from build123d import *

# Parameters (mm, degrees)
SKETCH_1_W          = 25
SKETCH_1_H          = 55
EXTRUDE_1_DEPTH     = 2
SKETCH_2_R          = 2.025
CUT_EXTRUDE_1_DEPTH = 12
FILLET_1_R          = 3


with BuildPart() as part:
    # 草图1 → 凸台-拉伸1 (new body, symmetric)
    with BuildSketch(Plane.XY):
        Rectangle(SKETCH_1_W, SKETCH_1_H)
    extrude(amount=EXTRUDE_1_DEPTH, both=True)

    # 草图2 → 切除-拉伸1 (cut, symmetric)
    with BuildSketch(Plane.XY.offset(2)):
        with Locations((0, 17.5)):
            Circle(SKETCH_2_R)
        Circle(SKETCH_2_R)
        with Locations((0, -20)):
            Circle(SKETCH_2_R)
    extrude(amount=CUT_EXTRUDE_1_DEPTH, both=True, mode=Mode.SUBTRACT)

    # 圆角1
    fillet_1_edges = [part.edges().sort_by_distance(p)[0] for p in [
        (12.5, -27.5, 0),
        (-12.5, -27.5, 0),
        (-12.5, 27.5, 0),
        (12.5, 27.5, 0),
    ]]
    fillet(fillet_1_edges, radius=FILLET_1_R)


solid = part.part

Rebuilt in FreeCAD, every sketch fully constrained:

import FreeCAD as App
import Part
import Sketcher
Q = App.Units.Quantity


def edges_at(feature, points):
    """Names of the edges that pass closest to the given points."""
    edges = feature.Shape.Edges
    near = lambda p: min(range(len(edges)), key=lambda i: edges[i].distToShape(Part.Vertex(*p))[0])
    return sorted({f"Edge{near(p) + 1}" for p in points})


def add_polygon(sketch, points):
    """Adds a closed chain of lines whose ends are joined by coincident constraints."""
    first, n = sketch.GeometryCount, len(points)
    for a, b in zip(points, points[1:] + points[:1]):
        sketch.addGeometry(Part.LineSegment(App.Vector(*a, 0), App.Vector(*b, 0)), False)
    for i in range(n):
        sketch.addConstraint(Sketcher.Constraint("Coincident", first + i, 2, first + (i + 1) % n, 1))

doc = App.newDocument("Part")
params = doc.addObject("Spreadsheet::Sheet", "Params")
for row, (alias, value) in enumerate([
    ("sketch1_width", "25 mm"),
    ("sketch1_height", "55 mm"),
    ("pad1_length", "4 mm"),
    ("sketch2_diameter", "4.05 mm"),
    ("pocket1_length", "24 mm"),
    ("fillet_radius", "3 mm"),
], start=1):
    params.set(f"A{row}", alias)
    params.set(f"B{row}", "=" + value)
    params.setAlias(f"B{row}", alias)

body = doc.addObject("PartDesign::Body", "Body")

# Sketch on XY plane
sketch1 = doc.addObject("Sketcher::SketchObject", "Sketch")
body.addObject(sketch1)
sketch1.AttachmentSupport = (doc.XY_Plane, [""])
sketch1.MapMode = "FlatFace"
add_polygon(sketch1, [(-12.5, 27.5), (-12.5, -27.5), (12.5, -27.5), (12.5, 27.5)])  # lines 0-3
sketch1.addConstraint(Sketcher.Constraint("Vertical", 0))
sketch1.addConstraint(Sketcher.Constraint("Horizontal", 1))
sketch1.addConstraint(Sketcher.Constraint("Vertical", 2))
sketch1.addConstraint(Sketcher.Constraint("Horizontal", 3))
sketch1.addConstraint(Sketcher.Constraint("Symmetric", 0, 2, 2, 2, -1, 1))
sketch1.addConstraint(Sketcher.Constraint("DistanceX", 1, 1, 1, 2, Q("25 mm")))
sketch1.addConstraint(Sketcher.Constraint("DistanceY", 0, 2, 0, 1, Q("55 mm")))
sketch1.setExpression("Constraints[9]", "Params.sketch1_width")
sketch1.setExpression("Constraints[10]", "Params.sketch1_height")
pad1 = doc.addObject("PartDesign::Pad", "Pad")
body.addObject(pad1)
pad1.Profile = sketch1
pad1.setExpression("Length", "Params.pad1_length")
pad1.Midplane = True

# Sketch on XY plane
sketch2 = doc.addObject("Sketcher::SketchObject", "Sketch001")
body.addObject(sketch2)
sketch2.AttachmentSupport = (doc.XY_Plane, [""])
sketch2.MapMode = "FlatFace"
sketch2.AttachmentOffset = App.Placement(App.Vector(0, 0, 2), App.Rotation())
sketch2.addGeometry(Part.Circle(App.Vector(0, 17.5, 0), App.Vector(0, 0, 1), 2.025), False)
sketch2.addGeometry(Part.Circle(App.Vector(0, 0, 0), App.Vector(0, 0, 1), 2.025), False)
sketch2.addGeometry(Part.Circle(App.Vector(0, -20, 0), App.Vector(0, 0, 1), 2.025), False)
sketch2.addConstraint(Sketcher.Constraint("Coincident", 1, 3, -1, 1))
sketch2.addConstraint(Sketcher.Constraint("Equal", 0, 1))
sketch2.addConstraint(Sketcher.Constraint("Equal", 1, 2))
sketch2.addConstraint(Sketcher.Constraint("PointOnObject", 0, 3, -2))
sketch2.addConstraint(Sketcher.Constraint("PointOnObject", 2, 3, -2))
sketch2.addConstraint(Sketcher.Constraint("Diameter", 0, Q("4.05 mm")))
sketch2.addConstraint(Sketcher.Constraint("DistanceY", 2, 3, -1, 1, Q("20 mm")))
sketch2.addConstraint(Sketcher.Constraint("DistanceY", -1, 1, 0, 3, Q("17.5 mm")))
sketch2.setExpression("Constraints[5]", "Params.sketch2_diameter")
pocket1 = doc.addObject("PartDesign::Pocket", "Pocket")
body.addObject(pocket1)
pocket1.Profile = sketch2
pocket1.setExpression("Length", "Params.pocket1_length")
pocket1.Midplane = True
doc.recompute()

fillet = doc.addObject("PartDesign::Fillet", "Fillet")
body.addObject(fillet)
fillet.Base = (pocket1, edges_at(pocket1, [
    (12.5, -27.5, 0),
    (-12.5, -27.5, 0),
    (-12.5, 27.5, 0),
    (12.5, 27.5, 0),
]))
fillet.setExpression("Radius", "Params.fillet_radius")

doc.recompute()
